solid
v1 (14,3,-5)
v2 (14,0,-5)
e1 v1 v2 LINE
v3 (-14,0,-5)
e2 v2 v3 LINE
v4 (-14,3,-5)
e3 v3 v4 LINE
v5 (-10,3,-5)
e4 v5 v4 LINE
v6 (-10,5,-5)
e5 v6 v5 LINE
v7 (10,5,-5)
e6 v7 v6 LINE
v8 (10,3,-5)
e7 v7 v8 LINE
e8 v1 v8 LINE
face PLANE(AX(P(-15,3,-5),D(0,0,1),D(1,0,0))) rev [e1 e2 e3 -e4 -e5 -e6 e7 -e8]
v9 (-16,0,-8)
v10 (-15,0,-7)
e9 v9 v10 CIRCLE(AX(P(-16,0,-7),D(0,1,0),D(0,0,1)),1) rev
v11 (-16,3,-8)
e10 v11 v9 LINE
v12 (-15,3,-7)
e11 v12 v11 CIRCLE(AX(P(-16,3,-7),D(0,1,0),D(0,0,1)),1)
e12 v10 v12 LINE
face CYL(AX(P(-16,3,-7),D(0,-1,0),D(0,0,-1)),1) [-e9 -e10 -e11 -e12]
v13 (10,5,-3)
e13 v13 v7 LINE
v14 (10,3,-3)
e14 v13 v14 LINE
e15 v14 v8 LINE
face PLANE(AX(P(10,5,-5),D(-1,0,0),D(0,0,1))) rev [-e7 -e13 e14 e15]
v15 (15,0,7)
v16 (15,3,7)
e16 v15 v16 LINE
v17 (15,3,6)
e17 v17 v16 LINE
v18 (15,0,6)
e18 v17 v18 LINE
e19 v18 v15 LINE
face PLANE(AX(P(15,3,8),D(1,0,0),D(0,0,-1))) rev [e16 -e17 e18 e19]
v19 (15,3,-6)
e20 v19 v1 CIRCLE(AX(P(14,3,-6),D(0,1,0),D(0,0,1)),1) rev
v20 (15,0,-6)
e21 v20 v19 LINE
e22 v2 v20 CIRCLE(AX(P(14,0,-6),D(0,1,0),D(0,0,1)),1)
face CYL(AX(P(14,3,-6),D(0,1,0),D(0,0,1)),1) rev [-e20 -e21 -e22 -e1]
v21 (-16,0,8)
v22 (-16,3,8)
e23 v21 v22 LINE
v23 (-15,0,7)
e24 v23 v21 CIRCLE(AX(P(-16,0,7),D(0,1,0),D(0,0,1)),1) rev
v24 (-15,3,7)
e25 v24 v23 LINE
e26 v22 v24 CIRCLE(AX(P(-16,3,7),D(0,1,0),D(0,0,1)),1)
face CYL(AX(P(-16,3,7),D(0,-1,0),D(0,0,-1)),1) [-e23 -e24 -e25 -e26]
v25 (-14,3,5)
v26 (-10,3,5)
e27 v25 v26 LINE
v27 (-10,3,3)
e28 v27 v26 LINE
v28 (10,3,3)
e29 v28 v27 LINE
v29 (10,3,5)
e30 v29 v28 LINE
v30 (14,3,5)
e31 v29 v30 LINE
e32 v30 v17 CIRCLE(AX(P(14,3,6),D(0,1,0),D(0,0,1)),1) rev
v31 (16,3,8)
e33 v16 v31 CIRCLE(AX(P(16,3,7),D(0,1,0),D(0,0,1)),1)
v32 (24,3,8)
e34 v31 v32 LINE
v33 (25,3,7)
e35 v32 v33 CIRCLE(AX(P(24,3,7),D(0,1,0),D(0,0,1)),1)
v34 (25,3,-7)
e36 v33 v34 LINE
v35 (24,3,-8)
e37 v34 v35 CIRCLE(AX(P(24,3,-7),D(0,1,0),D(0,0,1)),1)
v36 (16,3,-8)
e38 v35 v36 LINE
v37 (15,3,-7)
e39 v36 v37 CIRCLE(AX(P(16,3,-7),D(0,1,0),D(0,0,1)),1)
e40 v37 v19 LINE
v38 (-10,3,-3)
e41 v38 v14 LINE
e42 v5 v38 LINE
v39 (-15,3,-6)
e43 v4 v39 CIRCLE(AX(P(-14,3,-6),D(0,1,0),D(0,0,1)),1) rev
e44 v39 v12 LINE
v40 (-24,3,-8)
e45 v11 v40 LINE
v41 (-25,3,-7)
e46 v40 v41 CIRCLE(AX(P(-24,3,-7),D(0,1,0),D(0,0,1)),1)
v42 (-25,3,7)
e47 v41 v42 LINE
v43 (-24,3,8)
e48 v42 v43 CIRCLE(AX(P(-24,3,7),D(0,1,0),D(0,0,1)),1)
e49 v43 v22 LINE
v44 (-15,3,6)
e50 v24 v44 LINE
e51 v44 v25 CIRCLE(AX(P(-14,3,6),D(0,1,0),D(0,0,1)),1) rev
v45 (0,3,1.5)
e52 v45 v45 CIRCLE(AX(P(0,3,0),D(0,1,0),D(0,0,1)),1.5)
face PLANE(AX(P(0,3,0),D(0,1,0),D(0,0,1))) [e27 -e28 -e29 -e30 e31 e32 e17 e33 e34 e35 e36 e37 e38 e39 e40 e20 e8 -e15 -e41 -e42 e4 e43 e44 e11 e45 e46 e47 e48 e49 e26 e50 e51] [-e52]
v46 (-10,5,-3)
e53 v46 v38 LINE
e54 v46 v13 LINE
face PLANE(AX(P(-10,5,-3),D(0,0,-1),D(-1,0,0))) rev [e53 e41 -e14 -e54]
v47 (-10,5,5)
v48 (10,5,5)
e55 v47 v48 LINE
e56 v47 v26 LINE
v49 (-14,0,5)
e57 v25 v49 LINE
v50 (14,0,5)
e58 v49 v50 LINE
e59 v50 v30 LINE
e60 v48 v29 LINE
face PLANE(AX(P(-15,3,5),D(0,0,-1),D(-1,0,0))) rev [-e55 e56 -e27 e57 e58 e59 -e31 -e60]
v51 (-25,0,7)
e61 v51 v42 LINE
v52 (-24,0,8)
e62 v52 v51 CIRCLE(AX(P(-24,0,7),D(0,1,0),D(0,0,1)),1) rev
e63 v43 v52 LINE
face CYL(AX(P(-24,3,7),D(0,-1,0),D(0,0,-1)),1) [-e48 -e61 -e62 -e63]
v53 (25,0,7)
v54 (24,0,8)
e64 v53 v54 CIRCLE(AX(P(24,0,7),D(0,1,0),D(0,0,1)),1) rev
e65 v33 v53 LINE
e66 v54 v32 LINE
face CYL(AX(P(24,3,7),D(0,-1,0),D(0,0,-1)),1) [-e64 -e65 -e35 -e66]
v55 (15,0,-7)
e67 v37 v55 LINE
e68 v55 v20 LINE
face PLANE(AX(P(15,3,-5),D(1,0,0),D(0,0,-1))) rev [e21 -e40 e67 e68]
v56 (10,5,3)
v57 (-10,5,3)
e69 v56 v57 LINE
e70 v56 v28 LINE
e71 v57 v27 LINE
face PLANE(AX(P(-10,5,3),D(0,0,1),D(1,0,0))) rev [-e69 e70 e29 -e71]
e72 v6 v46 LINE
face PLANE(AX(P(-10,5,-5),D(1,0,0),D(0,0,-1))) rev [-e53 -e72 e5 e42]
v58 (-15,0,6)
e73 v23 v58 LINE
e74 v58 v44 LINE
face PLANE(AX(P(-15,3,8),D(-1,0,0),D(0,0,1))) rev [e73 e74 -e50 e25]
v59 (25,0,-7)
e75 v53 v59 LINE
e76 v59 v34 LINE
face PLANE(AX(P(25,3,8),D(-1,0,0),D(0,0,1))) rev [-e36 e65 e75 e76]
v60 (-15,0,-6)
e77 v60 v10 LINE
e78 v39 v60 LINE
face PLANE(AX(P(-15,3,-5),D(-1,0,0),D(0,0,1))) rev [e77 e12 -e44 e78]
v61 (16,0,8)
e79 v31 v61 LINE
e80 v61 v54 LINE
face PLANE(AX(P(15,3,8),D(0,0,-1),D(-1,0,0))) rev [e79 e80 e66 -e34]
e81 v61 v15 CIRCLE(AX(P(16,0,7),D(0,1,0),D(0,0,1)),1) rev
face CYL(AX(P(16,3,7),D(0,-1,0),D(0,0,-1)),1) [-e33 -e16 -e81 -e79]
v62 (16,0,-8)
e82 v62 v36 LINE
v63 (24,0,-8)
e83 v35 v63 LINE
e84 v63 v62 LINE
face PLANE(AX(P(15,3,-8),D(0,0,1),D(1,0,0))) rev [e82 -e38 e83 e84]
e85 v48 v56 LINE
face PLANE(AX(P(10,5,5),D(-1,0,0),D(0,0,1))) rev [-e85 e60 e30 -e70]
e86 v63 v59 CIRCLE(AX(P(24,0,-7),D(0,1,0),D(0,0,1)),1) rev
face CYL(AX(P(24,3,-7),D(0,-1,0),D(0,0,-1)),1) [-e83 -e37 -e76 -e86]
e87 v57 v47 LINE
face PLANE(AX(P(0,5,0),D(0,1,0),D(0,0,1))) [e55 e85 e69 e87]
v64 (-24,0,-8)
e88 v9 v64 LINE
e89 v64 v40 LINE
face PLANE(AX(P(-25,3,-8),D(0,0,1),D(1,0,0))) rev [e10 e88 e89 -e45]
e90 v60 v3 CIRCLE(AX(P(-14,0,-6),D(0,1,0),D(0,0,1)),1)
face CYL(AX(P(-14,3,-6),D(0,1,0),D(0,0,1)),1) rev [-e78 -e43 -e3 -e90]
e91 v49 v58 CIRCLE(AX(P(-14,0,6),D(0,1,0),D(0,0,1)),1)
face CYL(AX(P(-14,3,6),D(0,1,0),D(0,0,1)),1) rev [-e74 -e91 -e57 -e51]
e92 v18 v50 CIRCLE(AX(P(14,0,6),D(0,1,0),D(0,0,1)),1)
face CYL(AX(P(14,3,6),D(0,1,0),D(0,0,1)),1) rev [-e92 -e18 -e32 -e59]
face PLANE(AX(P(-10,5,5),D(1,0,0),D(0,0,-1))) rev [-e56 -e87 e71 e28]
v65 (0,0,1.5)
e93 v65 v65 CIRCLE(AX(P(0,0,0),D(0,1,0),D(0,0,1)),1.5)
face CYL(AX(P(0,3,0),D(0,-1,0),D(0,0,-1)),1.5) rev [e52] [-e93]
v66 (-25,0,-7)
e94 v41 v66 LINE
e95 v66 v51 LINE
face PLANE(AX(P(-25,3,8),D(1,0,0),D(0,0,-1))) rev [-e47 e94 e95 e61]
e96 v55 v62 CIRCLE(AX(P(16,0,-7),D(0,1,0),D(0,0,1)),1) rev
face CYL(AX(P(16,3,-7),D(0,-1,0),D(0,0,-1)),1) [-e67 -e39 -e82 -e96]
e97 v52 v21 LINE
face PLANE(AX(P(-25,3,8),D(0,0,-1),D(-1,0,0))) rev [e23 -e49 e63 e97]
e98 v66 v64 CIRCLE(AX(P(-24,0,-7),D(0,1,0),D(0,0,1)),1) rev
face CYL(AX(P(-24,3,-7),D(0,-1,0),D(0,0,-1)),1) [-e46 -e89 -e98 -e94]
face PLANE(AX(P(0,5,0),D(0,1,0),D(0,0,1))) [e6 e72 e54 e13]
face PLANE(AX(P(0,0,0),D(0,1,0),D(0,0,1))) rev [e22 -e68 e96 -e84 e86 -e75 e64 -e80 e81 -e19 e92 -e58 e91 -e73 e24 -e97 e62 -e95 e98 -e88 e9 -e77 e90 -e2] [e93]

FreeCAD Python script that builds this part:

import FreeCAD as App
import Part
import Sketcher


def edges_at(feature, points):
    """Names of the edges that pass closest to the given points."""
    edges = feature.Shape.Edges
    near = lambda p: min(range(len(edges)), key=lambda i: edges[i].distToShape(Part.Vertex(*p))[0])
    return sorted({f"Edge{near(p) + 1}" for p in points})

doc = App.newDocument("Part")
body = doc.addObject("PartDesign::Body", "Body")

sketch1 = body.newObject("Sketcher::SketchObject", "Sketch")
sketch1.AttachmentSupport = (doc.getObject("XZ_Plane"), [""])
sketch1.MapMode = "FlatFace"
sketch1.addGeometry([
    Part.LineSegment(App.Vector(-15, 5, 0), App.Vector(15, 5, 0)),
    Part.LineSegment(App.Vector(15, 5, 0), App.Vector(15, 8, 0)),
    Part.LineSegment(App.Vector(15, 8, 0), App.Vector(25, 8, 0)),
    Part.LineSegment(App.Vector(25, 8, 0), App.Vector(25, -8, 0)),
    Part.LineSegment(App.Vector(25, -8, 0), App.Vector(15, -8, 0)),
    Part.LineSegment(App.Vector(15, -8, 0), App.Vector(15, -5, 0)),
    Part.LineSegment(App.Vector(15, -5, 0), App.Vector(-15, -5, 0)),
    Part.LineSegment(App.Vector(-15, -5, 0), App.Vector(-15, -8, 0)),
    Part.LineSegment(App.Vector(-15, -8, 0), App.Vector(-25, -8, 0)),
    Part.LineSegment(App.Vector(-25, -8, 0), App.Vector(-25, 8, 0)),
    Part.LineSegment(App.Vector(-25, 8, 0), App.Vector(-15, 8, 0)),
    Part.LineSegment(App.Vector(-15, 8, 0), App.Vector(-15, 5, 0)),
    Part.Circle(App.Vector(0, 0, 0), App.Vector(0, 0, 1), 1.5),
], False)
sketch1.addConstraint([
    Sketcher.Constraint("Coincident", 0, 2, 1, 1),
    Sketcher.Constraint("Coincident", 1, 2, 2, 1),
    Sketcher.Constraint("Coincident", 2, 2, 3, 1),
    Sketcher.Constraint("Coincident", 3, 2, 4, 1),
    Sketcher.Constraint("Coincident", 4, 2, 5, 1),
    Sketcher.Constraint("Coincident", 5, 2, 6, 1),
    Sketcher.Constraint("Coincident", 6, 2, 7, 1),
    Sketcher.Constraint("Coincident", 7, 2, 8, 1),
    Sketcher.Constraint("Coincident", 8, 2, 9, 1),
    Sketcher.Constraint("Coincident", 9, 2, 10, 1),
    Sketcher.Constraint("Coincident", 10, 2, 11, 1),
    Sketcher.Constraint("Coincident", 11, 2, 0, 1),
    Sketcher.Constraint("Horizontal", 0),
    Sketcher.Constraint("Vertical", 1),
    Sketcher.Constraint("Horizontal", 2),
    Sketcher.Constraint("Vertical", 3),
    Sketcher.Constraint("Horizontal", 4),
    Sketcher.Constraint("Vertical", 5),
    Sketcher.Constraint("Horizontal", 6),
    Sketcher.Constraint("Vertical", 7),
    Sketcher.Constraint("Horizontal", 8),
    Sketcher.Constraint("Vertical", 9),
    Sketcher.Constraint("Horizontal", 10),
    Sketcher.Constraint("Vertical", 11),
    Sketcher.Constraint("Coincident", 12, 3, -1, 1),
    Sketcher.Constraint("Symmetric", 0, 2, 6, 2, -1, 1),
    Sketcher.Constraint("Symmetric", 2, 2, 8, 2, -1, 1),
    Sketcher.Constraint("Symmetric", 4, 2, 10, 2, -1, 1),
    Sketcher.Constraint("Symmetric", 4, 2, 7, 2, -2),
    Sketcher.Constraint("Diameter", 12, 3.0),
    Sketcher.Constraint("DistanceX", 0, 1, 0, 2, 30.0),
    Sketcher.Constraint("DistanceX", 2, 1, 2, 2, 10.0),
    Sketcher.Constraint("DistanceY", 1, 1, 1, 2, 3.0),
    Sketcher.Constraint("DistanceY", 3, 2, 3, 1, 16.0),
])
pad1 = body.newObject("PartDesign::Pad", "Pad")
pad1.Profile = sketch1
pad1.Length = 3
pad1.Reversed = True

sketch2 = body.newObject("Sketcher::SketchObject", "Sketch001")
sketch2.AttachmentSupport = (doc.getObject("XZ_Plane"), [""])
sketch2.MapMode = "FlatFace"
sketch2.AttachmentOffset = App.Placement(App.Vector(0, 0, -3), App.Rotation())
sketch2.addGeometry([
    Part.LineSegment(App.Vector(-10, -5, 0), App.Vector(-10, -3, 0)),
    Part.LineSegment(App.Vector(-10, -3, 0), App.Vector(10, -3, 0)),
    Part.LineSegment(App.Vector(10, -3, 0), App.Vector(10, -5, 0)),
    Part.LineSegment(App.Vector(10, -5, 0), App.Vector(-10, -5, 0)),
    Part.LineSegment(App.Vector(-10, 3, 0), App.Vector(-10, 5, 0)),
    Part.LineSegment(App.Vector(-10, 5, 0), App.Vector(10, 5, 0)),
    Part.LineSegment(App.Vector(10, 5, 0), App.Vector(10, 3, 0)),
    Part.LineSegment(App.Vector(10, 3, 0), App.Vector(-10, 3, 0)),
], False)
sketch2.addConstraint([
    Sketcher.Constraint("Coincident", 0, 2, 1, 1),
    Sketcher.Constraint("Coincident", 1, 2, 2, 1),
    Sketcher.Constraint("Coincident", 2, 2, 3, 1),
    Sketcher.Constraint("Coincident", 3, 2, 0, 1),
    Sketcher.Constraint("Coincident", 4, 2, 5, 1),
    Sketcher.Constraint("Coincident", 5, 2, 6, 1),
    Sketcher.Constraint("Coincident", 6, 2, 7, 1),
    Sketcher.Constraint("Coincident", 7, 2, 4, 1),
    Sketcher.Constraint("Vertical", 0),
    Sketcher.Constraint("Horizontal", 1),
    Sketcher.Constraint("Vertical", 2),
    Sketcher.Constraint("Horizontal", 3),
    Sketcher.Constraint("Vertical", 4),
    Sketcher.Constraint("Horizontal", 5),
    Sketcher.Constraint("Vertical", 6),
    Sketcher.Constraint("Horizontal", 7),
    Sketcher.Constraint("Symmetric", 2, 2, 4, 2, -1, 1),
    Sketcher.Constraint("Symmetric", 0, 2, 6, 2, -1, 1),
    Sketcher.Constraint("Vertical", 3, 2, 4, 2),
    Sketcher.Constraint("DistanceX", 1, 1, 1, 2, 20.0),
    Sketcher.Constraint("DistanceY", 0, 1, 0, 2, 2.0),
    Sketcher.Constraint("DistanceY", 0, 2, -1, 1, 3.0),
])
pad2 = body.newObject("PartDesign::Pad", "Pad001")
pad2.Profile = sketch2
pad2.Length = 2
pad2.Reversed = True
doc.recompute()

fillet = body.newObject("PartDesign::Fillet", "Fillet")
fillet.Base = (pad2, edges_at(pad2, [
    (-15, 1.5, -8),
    (-15, 1.5, -5),
    (15, 1.5, -5),
    (15, 1.5, -8),
    (25, 1.5, -8),
    (25, 1.5, 8),
    (15, 1.5, 8),
    (15, 1.5, 5),
    (-15, 1.5, 5),
    (-15, 1.5, 8),
    (-25, 1.5, 8),
    (-25, 1.5, -8),
]))
fillet.Radius = 1

doc.recompute()
